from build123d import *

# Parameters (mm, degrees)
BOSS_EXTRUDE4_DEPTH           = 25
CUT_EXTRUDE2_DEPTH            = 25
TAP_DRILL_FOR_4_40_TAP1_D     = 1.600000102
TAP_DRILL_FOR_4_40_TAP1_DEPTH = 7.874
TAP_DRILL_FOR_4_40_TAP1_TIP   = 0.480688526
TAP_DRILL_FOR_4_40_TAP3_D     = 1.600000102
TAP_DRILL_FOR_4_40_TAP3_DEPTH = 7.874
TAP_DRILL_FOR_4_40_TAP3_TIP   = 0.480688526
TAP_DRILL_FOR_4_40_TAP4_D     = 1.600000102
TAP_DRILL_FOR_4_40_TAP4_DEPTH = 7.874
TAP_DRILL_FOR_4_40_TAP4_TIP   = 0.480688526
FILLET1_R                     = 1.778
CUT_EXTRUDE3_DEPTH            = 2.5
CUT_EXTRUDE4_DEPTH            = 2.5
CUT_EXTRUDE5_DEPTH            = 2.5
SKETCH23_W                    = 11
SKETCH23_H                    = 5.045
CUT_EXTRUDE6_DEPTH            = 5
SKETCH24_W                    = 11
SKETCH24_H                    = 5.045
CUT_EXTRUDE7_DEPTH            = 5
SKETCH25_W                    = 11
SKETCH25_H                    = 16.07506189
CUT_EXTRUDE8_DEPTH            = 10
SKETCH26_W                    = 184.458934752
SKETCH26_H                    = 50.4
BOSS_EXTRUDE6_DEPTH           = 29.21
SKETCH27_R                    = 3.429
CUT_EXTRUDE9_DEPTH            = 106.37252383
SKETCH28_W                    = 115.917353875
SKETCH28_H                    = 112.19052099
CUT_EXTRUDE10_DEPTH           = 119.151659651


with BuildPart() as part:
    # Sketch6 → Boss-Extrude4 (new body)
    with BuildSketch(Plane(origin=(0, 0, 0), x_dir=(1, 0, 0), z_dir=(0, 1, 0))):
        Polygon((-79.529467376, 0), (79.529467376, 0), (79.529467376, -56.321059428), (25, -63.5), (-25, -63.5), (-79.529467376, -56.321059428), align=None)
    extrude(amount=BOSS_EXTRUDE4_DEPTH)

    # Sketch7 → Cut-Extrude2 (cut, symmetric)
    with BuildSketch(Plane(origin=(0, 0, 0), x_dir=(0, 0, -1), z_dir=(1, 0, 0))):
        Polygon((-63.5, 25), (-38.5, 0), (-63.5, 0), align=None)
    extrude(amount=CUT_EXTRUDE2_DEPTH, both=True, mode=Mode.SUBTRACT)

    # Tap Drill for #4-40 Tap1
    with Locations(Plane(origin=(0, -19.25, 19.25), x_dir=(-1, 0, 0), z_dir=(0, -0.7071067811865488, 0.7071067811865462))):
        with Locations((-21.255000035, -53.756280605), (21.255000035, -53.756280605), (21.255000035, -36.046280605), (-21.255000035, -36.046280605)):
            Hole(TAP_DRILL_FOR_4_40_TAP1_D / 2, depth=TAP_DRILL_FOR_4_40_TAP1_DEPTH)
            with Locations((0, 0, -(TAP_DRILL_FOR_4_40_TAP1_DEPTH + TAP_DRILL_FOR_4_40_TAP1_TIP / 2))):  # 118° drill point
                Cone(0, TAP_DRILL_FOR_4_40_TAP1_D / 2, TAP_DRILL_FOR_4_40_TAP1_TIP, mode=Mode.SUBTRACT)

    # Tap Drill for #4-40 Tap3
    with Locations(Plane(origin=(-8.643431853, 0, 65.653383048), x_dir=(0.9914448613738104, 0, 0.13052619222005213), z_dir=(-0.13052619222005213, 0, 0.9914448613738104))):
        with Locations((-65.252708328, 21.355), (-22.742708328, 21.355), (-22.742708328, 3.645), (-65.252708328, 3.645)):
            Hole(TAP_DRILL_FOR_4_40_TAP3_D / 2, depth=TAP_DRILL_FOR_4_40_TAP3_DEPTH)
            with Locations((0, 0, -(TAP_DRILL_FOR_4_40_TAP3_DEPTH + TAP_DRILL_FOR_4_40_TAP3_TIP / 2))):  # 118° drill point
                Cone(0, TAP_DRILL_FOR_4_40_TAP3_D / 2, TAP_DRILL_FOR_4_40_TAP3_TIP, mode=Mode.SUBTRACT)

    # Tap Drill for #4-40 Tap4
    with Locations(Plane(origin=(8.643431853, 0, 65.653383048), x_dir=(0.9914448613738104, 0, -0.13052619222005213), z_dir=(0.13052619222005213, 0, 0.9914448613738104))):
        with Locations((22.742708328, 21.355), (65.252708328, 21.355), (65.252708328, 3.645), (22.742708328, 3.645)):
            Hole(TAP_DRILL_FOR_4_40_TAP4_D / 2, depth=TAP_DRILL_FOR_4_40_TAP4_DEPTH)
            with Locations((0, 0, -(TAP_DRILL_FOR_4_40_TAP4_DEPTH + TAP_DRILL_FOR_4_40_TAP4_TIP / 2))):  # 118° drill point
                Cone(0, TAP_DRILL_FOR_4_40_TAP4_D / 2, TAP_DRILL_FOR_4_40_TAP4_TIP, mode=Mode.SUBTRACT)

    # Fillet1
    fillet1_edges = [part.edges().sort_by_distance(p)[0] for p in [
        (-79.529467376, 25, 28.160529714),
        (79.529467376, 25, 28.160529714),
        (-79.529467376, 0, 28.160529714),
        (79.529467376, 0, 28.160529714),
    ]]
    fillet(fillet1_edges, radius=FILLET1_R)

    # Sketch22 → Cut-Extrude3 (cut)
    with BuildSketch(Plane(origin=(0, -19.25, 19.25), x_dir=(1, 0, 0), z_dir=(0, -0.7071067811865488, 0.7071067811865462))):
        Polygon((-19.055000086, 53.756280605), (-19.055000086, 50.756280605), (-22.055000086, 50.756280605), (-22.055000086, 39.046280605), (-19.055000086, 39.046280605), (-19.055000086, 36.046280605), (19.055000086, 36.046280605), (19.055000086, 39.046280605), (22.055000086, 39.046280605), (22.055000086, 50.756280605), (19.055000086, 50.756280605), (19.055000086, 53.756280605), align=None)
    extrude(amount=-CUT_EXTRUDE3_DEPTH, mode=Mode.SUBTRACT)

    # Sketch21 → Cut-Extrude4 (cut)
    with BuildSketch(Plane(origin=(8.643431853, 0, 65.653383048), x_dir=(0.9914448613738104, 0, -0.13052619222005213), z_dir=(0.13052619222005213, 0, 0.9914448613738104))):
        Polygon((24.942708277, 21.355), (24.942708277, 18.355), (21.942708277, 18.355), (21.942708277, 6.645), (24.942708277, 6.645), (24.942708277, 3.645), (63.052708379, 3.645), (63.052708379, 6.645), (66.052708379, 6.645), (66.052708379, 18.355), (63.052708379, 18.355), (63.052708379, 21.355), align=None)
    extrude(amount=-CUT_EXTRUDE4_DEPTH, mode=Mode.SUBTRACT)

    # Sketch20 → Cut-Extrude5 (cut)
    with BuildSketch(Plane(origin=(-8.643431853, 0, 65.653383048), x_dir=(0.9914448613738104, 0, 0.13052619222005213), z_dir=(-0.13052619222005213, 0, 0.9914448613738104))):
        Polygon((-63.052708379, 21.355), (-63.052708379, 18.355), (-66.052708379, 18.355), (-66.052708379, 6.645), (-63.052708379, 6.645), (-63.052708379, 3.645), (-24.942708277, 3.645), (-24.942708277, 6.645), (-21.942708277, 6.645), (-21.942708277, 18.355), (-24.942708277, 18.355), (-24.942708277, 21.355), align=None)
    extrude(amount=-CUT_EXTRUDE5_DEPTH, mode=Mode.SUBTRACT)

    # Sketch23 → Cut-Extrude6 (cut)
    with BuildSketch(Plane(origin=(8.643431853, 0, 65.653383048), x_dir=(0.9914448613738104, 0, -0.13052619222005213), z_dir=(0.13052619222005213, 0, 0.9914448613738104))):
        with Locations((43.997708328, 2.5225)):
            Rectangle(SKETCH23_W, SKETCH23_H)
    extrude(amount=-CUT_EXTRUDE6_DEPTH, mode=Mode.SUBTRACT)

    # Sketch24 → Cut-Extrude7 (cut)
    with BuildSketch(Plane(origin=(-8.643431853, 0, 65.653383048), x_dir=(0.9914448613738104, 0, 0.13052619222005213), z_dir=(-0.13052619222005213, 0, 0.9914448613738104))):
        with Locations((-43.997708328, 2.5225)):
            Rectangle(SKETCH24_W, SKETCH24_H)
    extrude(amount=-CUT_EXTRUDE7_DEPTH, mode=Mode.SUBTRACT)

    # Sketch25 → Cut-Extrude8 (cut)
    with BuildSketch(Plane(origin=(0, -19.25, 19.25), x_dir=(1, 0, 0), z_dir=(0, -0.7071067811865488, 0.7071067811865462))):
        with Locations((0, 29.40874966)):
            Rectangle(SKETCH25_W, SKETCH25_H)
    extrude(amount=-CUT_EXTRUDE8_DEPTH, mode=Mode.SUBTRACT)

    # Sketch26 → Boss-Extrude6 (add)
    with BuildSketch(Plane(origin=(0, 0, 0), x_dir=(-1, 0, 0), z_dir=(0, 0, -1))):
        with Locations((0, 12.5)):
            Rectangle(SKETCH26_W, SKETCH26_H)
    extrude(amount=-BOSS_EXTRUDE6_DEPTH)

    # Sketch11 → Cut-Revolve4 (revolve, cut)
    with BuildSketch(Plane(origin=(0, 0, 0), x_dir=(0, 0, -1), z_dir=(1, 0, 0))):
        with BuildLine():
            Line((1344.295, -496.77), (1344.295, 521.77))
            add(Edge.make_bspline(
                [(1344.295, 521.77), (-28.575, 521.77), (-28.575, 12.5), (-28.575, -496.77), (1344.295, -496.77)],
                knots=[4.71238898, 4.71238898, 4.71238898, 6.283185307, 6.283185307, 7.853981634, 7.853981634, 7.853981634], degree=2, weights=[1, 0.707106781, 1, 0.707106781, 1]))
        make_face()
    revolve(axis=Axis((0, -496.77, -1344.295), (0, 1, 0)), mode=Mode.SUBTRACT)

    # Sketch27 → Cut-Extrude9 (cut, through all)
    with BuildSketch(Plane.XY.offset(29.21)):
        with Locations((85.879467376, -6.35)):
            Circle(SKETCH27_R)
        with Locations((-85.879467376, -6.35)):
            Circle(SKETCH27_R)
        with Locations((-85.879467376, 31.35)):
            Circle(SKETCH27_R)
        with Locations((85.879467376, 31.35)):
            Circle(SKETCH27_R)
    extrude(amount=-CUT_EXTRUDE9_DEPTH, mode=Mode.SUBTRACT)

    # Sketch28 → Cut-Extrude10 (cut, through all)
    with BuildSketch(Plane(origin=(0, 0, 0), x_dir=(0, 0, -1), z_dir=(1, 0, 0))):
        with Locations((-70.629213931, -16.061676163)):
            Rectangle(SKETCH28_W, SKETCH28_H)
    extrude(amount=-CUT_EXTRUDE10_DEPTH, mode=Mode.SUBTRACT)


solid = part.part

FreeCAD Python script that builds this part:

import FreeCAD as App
import Part
import Sketcher
from FreeCAD import Vector
Q = App.Units.Quantity


def edges_at(feature, points):
    """Names of the edges that pass closest to the given points."""
    edges = feature.Shape.Edges
    near = lambda p: min(range(len(edges)), key=lambda i: edges[i].distToShape(Part.Vertex(*p))[0])
    return sorted({f"Edge{near(p) + 1}" for p in points})

doc = App.newDocument("Part")
body = doc.addObject("PartDesign::Body", "Body")

# Sketch on XZ plane
sketch1 = body.newObject("Sketcher::SketchObject", "Sketch")
sketch1.AttachmentSupport = (doc.getObject("XZ_Plane"), [""])
sketch1.MapMode = "FlatFace"
sketch1.addGeometry(Part.LineSegment(Vector(80, 0, 0), Vector(-80, 0, 0)), False)
sketch1.addGeometry(Part.LineSegment(Vector(-80, 0, 0), Vector(-80, 56, 0)), False)
sketch1.addGeometry(Part.LineSegment(Vector(-80, 56, 0), Vector(-25, 64, 0)), False)
sketch1.addGeometry(Part.LineSegment(Vector(-25, 64, 0), Vector(25, 64, 0)), False)
sketch1.addGeometry(Part.LineSegment(Vector(25, 64, 0), Vector(80, 56, 0)), False)
sketch1.addGeometry(Part.LineSegment(Vector(80, 56, 0), Vector(80, 0, 0)), False)
sketch1.addConstraint(Sketcher.Constraint("Coincident", 0, 2, 1, 1))
sketch1.addConstraint(Sketcher.Constraint("Coincident", 1, 2, 2, 1))
sketch1.addConstraint(Sketcher.Constraint("Coincident", 2, 2, 3, 1))
sketch1.addConstraint(Sketcher.Constraint("Coincident", 3, 2, 4, 1))
sketch1.addConstraint(Sketcher.Constraint("Coincident", 4, 2, 5, 1))
sketch1.addConstraint(Sketcher.Constraint("Coincident", 5, 2, 0, 1))
sketch1.addConstraint(Sketcher.Constraint("Horizontal", 0))
sketch1.addConstraint(Sketcher.Constraint("Vertical", 1))
sketch1.addConstraint(Sketcher.Constraint("Horizontal", 3))
sketch1.addConstraint(Sketcher.Constraint("Vertical", 5))
sketch1.addConstraint(Sketcher.Constraint("Symmetric", 0, 2, 5, 2, -1, 1))
sketch1.addConstraint(Sketcher.Constraint("Horizontal", 1, 2, 4, 2))
sketch1.addConstraint(Sketcher.Constraint("Equal", 2, 4))
sketch1.addConstraint(Sketcher.Constraint("DistanceX", 3, 1, 3, 2, Q("50 mm")))
sketch1.addConstraint(Sketcher.Constraint("Distance", 2, Q("55 mm")))
sketch1.addConstraint(Sketcher.Constraint("Angle", 2, Q("7.5 deg")))
sketch1.addConstraint(Sketcher.Constraint("DistanceY", -1, 1, 2, 2, Q("63.5 mm")))
pad1 = body.newObject("PartDesign::Pad", "Pad")
pad1.Profile = sketch1
pad1.Length = 25
pad1.Reversed = True

# Sketch on YZ plane
sketch2 = body.newObject("Sketcher::SketchObject", "Sketch001")
sketch2.AttachmentSupport = (doc.getObject("YZ_Plane"), [""])
sketch2.MapMode = "FlatFace"
sketch2.addGeometry(Part.LineSegment(Vector(0, 38, 0), Vector(25, 64, 0)), False)
sketch2.addGeometry(Part.LineSegment(Vector(25, 64, 0), Vector(0, 64, 0)), False)
sketch2.addGeometry(Part.LineSegment(Vector(0, 64, 0), Vector(0, 38, 0)), False)
sketch2.addConstraint(Sketcher.Constraint("Coincident", 0, 2, 1, 1))
sketch2.addConstraint(Sketcher.Constraint("Coincident", 1, 2, 2, 1))
sketch2.addConstraint(Sketcher.Constraint("Coincident", 2, 2, 0, 1))
sketch2.addConstraint(Sketcher.Constraint("Horizontal", 1))
sketch2.addConstraint(Sketcher.Constraint("Vertical", 2))
sketch2.addConstraint(Sketcher.Constraint("PointOnObject", 1, 2, -2))
sketch2.addConstraint(Sketcher.Constraint("Equal", 1, 2))
sketch2.addConstraint(Sketcher.Constraint("DistanceX", 1, 2, 1, 1, Q("25 mm")))
sketch2.addConstraint(Sketcher.Constraint("DistanceY", -1, 1, 0, 2, Q("63.5 mm")))
pocket1 = body.newObject("PartDesign::Pocket", "Pocket")
pocket1.Profile = sketch2
pocket1.Length = 50
pocket1.Midplane = True

# Sketch on an angled plane
sketch3 = body.newObject("Sketcher::SketchObject", "Sketch002")
sketch3.Placement = App.Placement(Vector(0, -19.25, 19.25), App.Rotation(Vector(-1, 0, 0), Vector(0, -0.707106781, -0.707106781), Vector(0, -0.707106781, 0.707106781), "ZXY"))
sketch3.addGeometry(Part.Circle(Vector(-21.3, -53.8, 0), Vector(0, 0, 1), 0.8), False)
sketch3.addGeometry(Part.Circle(Vector(21.3, -53.8, 0), Vector(0, 0, 1), 0.8), False)
sketch3.addGeometry(Part.Circle(Vector(21.3, -36, 0), Vector(0, 0, 1), 0.8), False)
sketch3.addGeometry(Part.Circle(Vector(-21.3, -36, 0), Vector(0, 0, 1), 0.8), False)
sketch3.addConstraint(Sketcher.Constraint("Equal", 0, 1))
sketch3.addConstraint(Sketcher.Constraint("Equal", 1, 2))
sketch3.addConstraint(Sketcher.Constraint("Equal", 2, 3))
sketch3.addConstraint(Sketcher.Constraint("Symmetric", 0, 3, 1, 3, -2))
sketch3.addConstraint(Sketcher.Constraint("Symmetric", 2, 3, 3, 3, -2))
sketch3.addConstraint(Sketcher.Constraint("Vertical", 1, 3, 2, 3))
sketch3.addConstraint(Sketcher.Constraint("Diameter", 0, Q("1.6 mm")))
sketch3.addConstraint(Sketcher.Constraint("DistanceX", 0, 3, 1, 3, Q("42.51 mm")))
sketch3.addConstraint(Sketcher.Constraint("DistanceY", 1, 3, 2, 3, Q("17.71 mm")))
sketch3.addConstraint(Sketcher.Constraint("DistanceY", 0, 3, -1, 1, Q("53.756281 mm")))
doc.recompute()
hole = body.newObject("PartDesign::Hole", "Hole")
hole.Profile = sketch3
hole.ThreadType = "None"
hole.Diameter = 1.6
hole.DepthType = "Dimension"
hole.Depth = 7.874
hole.DrillPoint = "Angled"
hole.DrillPointAngle = 118

# Sketch on an angled plane
sketch4 = body.newObject("Sketcher::SketchObject", "Sketch003")
sketch4.Placement = App.Placement(Vector(-8.643432, 0, 65.653383), App.Rotation(Vector(0.991444861, 0, 0.130526192), Vector(0, 0.999999999, 0), Vector(-0.130526192, 0, 0.991444861), "ZXY"))
sketch4.addGeometry(Part.Circle(Vector(-65.3, 21.4, 0), Vector(0, 0, 1), 0.8), False)
sketch4.addGeometry(Part.Circle(Vector(-22.7, 21.4, 0), Vector(0, 0, 1), 0.8), False)
sketch4.addGeometry(Part.Circle(Vector(-22.7, 3.6, 0), Vector(0, 0, 1), 0.8), False)
sketch4.addGeometry(Part.Circle(Vector(-65.3, 3.6, 0), Vector(0, 0, 1), 0.8), False)
sketch4.addConstraint(Sketcher.Constraint("Equal", 0, 1))
sketch4.addConstraint(Sketcher.Constraint("Equal", 1, 2))
sketch4.addConstraint(Sketcher.Constraint("Equal", 2, 3))
sketch4.addConstraint(Sketcher.Constraint("Horizontal", 0, 3, 1, 3))
sketch4.addConstraint(Sketcher.Constraint("Horizontal", 2, 3, 3, 3))
sketch4.addConstraint(Sketcher.Constraint("Vertical", 1, 3, 2, 3))
sketch4.addConstraint(Sketcher.Constraint("Vertical", 0, 3, 3, 3))
sketch4.addConstraint(Sketcher.Constraint("Diameter", 0, Q("1.6 mm")))
sketch4.addConstraint(Sketcher.Constraint("DistanceX", 0, 3, 1, 3, Q("42.51 mm")))
sketch4.addConstraint(Sketcher.Constraint("DistanceY", 2, 3, 1, 3, Q("17.71 mm")))
sketch4.addConstraint(Sketcher.Constraint("DistanceY", -1, 1, 0, 3, Q("21.355 mm")))
sketch4.addConstraint(Sketcher.Constraint("DistanceX", 0, 3, -1, 1, Q("65.252708 mm")))
doc.recompute()
hole2 = body.newObject("PartDesign::Hole", "Hole001")
hole2.Profile = sketch4
hole2.ThreadType = "None"
hole2.Diameter = 1.6
hole2.DepthType = "Dimension"
hole2.Depth = 7.874
hole2.DrillPoint = "Angled"
hole2.DrillPointAngle = 118

# Sketch on an angled plane
sketch5 = body.newObject("Sketcher::SketchObject", "Sketch004")
sketch5.Placement = App.Placement(Vector(8.643432, 0, 65.653383), App.Rotation(Vector(0.991444861, 0, -0.130526192), Vector(0, 0.999999999, 0), Vector(0.130526192, 0, 0.991444861), "ZXY"))
sketch5.addGeometry(Part.Circle(Vector(22.7, 21.4, 0), Vector(0, 0, 1), 0.8), False)
sketch5.addGeometry(Part.Circle(Vector(65.3, 21.4, 0), Vector(0, 0, 1), 0.8), False)
sketch5.addGeometry(Part.Circle(Vector(65.3, 3.6, 0), Vector(0, 0, 1), 0.8), False)
sketch5.addGeometry(Part.Circle(Vector(22.7, 3.6, 0), Vector(0, 0, 1), 0.8), False)
sketch5.addConstraint(Sketcher.Constraint("Equal", 0, 1))
sketch5.addConstraint(Sketcher.Constraint("Equal", 1, 2))
sketch5.addConstraint(Sketcher.Constraint("Equal", 2, 3))
sketch5.addConstraint(Sketcher.Constraint("Horizontal", 0, 3, 1, 3))
sketch5.addConstraint(Sketcher.Constraint("Horizontal", 2, 3, 3, 3))
sketch5.addConstraint(Sketcher.Constraint("Vertical", 1, 3, 2, 3))
sketch5.addConstraint(Sketcher.Constraint("Vertical", 0, 3, 3, 3))
sketch5.addConstraint(Sketcher.Constraint("Diameter", 0, Q("1.6 mm")))
sketch5.addConstraint(Sketcher.Constraint("DistanceX", 0, 3, 1, 3, Q("42.51 mm")))
sketch5.addConstraint(Sketcher.Constraint("DistanceY", 2, 3, 1, 3, Q("17.71 mm")))
sketch5.addConstraint(Sketcher.Constraint("DistanceY", -1, 1, 0, 3, Q("21.355 mm")))
sketch5.addConstraint(Sketcher.Constraint("DistanceX", -1, 1, 0, 3, Q("22.742708 mm")))
doc.recompute()
hole3 = body.newObject("PartDesign::Hole", "Hole002")
hole3.Profile = sketch5
hole3.ThreadType = "None"
hole3.Diameter = 1.6
hole3.DepthType = "Dimension"
hole3.Depth = 7.874
hole3.DrillPoint = "Angled"
hole3.DrillPointAngle = 118
doc.recompute()

fillet = body.newObject("PartDesign::Fillet", "Fillet")
fillet.Base = (hole3, edges_at(hole3, [
    (-79.529, 25, 28.161),
    (79.529, 25, 28.161),
    (-79.529, 0, 28.161),
    (79.529, 0, 28.161),
]))
fillet.Radius = 1.778

# Sketch on an angled plane
sketch6 = body.newObject("Sketcher::SketchObject", "Sketch005")
sketch6.Placement = App.Placement(Vector(0, -19.25, 19.25), App.Rotation(Vector(1, 0, 0), Vector(0, 0.707106781, 0.707106781), Vector(0, -0.707106781, 0.707106781), "ZXY"))
sketch6.addGeometry(Part.LineSegment(Vector(-19.1, 53.8, 0), Vector(-19.1, 50.8, 0)), False)
sketch6.addGeometry(Part.LineSegment(Vector(-19.1, 50.8, 0), Vector(-22.1, 50.8, 0)), False)
sketch6.addGeometry(Part.LineSegment(Vector(-22.1, 50.8, 0), Vector(-22.1, 39, 0)), False)
sketch6.addGeometry(Part.LineSegment(Vector(-22.1, 39, 0), Vector(-19.1, 39, 0)), False)
sketch6.addGeometry(Part.LineSegment(Vector(-19.1, 39, 0), Vector(-19.1, 36, 0)), False)
sketch6.addGeometry(Part.LineSegment(Vector(-19.1, 36, 0), Vector(19.1, 36, 0)), False)
sketch6.addGeometry(Part.LineSegment(Vector(19.1, 36, 0), Vector(19.1, 39, 0)), False)
sketch6.addGeometry(Part.LineSegment(Vector(19.1, 39, 0), Vector(22.1, 39, 0)), False)
sketch6.addGeometry(Part.LineSegment(Vector(22.1, 39, 0), Vector(22.1, 50.8, 0)), False)
sketch6.addGeometry(Part.LineSegment(Vector(22.1, 50.8, 0), Vector(19.1, 50.8, 0)), False)
sketch6.addGeometry(Part.LineSegment(Vector(19.1, 50.8, 0), Vector(19.1, 53.8, 0)), False)
sketch6.addGeometry(Part.LineSegment(Vector(19.1, 53.8, 0), Vector(-19.1, 53.8, 0)), False)
sketch6.addConstraint(Sketcher.Constraint("Coincident", 0, 2, 1, 1))
sketch6.addConstraint(Sketcher.Constraint("Coincident", 1, 2, 2, 1))
sketch6.addConstraint(Sketcher.Constraint("Coincident", 2, 2, 3, 1))
sketch6.addConstraint(Sketcher.Constraint("Coincident", 3, 2, 4, 1))
sketch6.addConstraint(Sketcher.Constraint("Coincident", 4, 2, 5, 1))
sketch6.addConstraint(Sketcher.Constraint("Coincident", 5, 2, 6, 1))
sketch6.addConstraint(Sketcher.Constraint("Coincident", 6, 2, 7, 1))
sketch6.addConstraint(Sketcher.Constraint("Coincident", 7, 2, 8, 1))
sketch6.addConstraint(Sketcher.Constraint("Coincident", 8, 2, 9, 1))
sketch6.addConstraint(Sketcher.Constraint("Coincident", 9, 2, 10, 1))
sketch6.addConstraint(Sketcher.Constraint("Coincident", 10, 2, 11, 1))
sketch6.addConstraint(Sketcher.Constraint("Coincident", 11, 2, 0, 1))
sketch6.addConstraint(Sketcher.Constraint("Vertical", 0))
sketch6.addConstraint(Sketcher.Constraint("Horizontal", 1))
sketch6.addConstraint(Sketcher.Constraint("Vertical", 2))
sketch6.addConstraint(Sketcher.Constraint("Horizontal", 3))
sketch6.addConstraint(Sketcher.Constraint("Vertical", 4))
sketch6.addConstraint(Sketcher.Constraint("Horizontal", 5))
sketch6.addConstraint(Sketcher.Constraint("Vertical", 6))
sketch6.addConstraint(Sketcher.Constraint("Horizontal", 7))
sketch6.addConstraint(Sketcher.Constraint("Vertical", 8))
sketch6.addConstraint(Sketcher.Constraint("Horizontal", 9))
sketch6.addConstraint(Sketcher.Constraint("Vertical", 10))
sketch6.addConstraint(Sketcher.Constraint("Horizontal", 11))
sketch6.addConstraint(Sketcher.Constraint("Symmetric", 3, 2, 6, 2, -2))
sketch6.addConstraint(Sketcher.Constraint("Symmetric", 1, 2, 8, 2, -2))
sketch6.addConstraint(Sketcher.Constraint("Vertical", 0, 2, 3, 2))
sketch6.addConstraint(Sketcher.Constraint("Vertical", 6, 2, 9, 2))
sketch6.addConstraint(Sketcher.Constraint("Equal", 9, 0))
sketch6.addConstraint(Sketcher.Constraint("Equal", 0, 4))
sketch6.addConstraint(Sketcher.Constraint("DistanceX", 1, 2, 1, 1, Q("3 mm")))
sketch6.addConstraint(Sketcher.Constraint("DistanceX", 5, 1, 5, 2, Q("38.11 mm")))
sketch6.addConstraint(Sketcher.Constraint("DistanceY", 2, 2, 2, 1, Q("11.71 mm")))
sketch6.addConstraint(Sketcher.Constraint("DistanceY", -1, 1, 0, 2, Q("50.756281 mm")))
pocket2 = body.newObject("PartDesign::Pocket", "Pocket001")
pocket2.Profile = sketch6
pocket2.Length = 2.5

# Sketch on an angled plane
sketch7 = body.newObject("Sketcher::SketchObject", "Sketch006")
sketch7.Placement = App.Placement(Vector(8.643432, 0, 65.653383), App.Rotation(Vector(0.991444861, 0, -0.130526192), Vector(0, 0.999999999, 0), Vector(0.130526192, 0, 0.991444861), "ZXY"))
sketch7.addGeometry(Part.LineSegment(Vector(24.9, 21.4, 0), Vector(24.9, 18.4, 0)), False)
sketch7.addGeometry(Part.LineSegment(Vector(24.9, 18.4, 0), Vector(21.9, 18.4, 0)), False)
sketch7.addGeometry(Part.LineSegment(Vector(21.9, 18.4, 0), Vector(21.9, 6.6, 0)), False)
sketch7.addGeometry(Part.LineSegment(Vector(21.9, 6.6, 0), Vector(24.9, 6.6, 0)), False)
sketch7.addGeometry(Part.LineSegment(Vector(24.9, 6.6, 0), Vector(24.9, 3.6, 0)), False)
sketch7.addGeometry(Part.LineSegment(Vector(24.9, 3.6, 0), Vector(63.1, 3.6, 0)), False)
sketch7.addGeometry(Part.LineSegment(Vector(63.1, 3.6, 0), Vector(63.1, 6.6, 0)), False)
sketch7.addGeometry(Part.LineSegment(Vector(63.1, 6.6, 0), Vector(66.1, 6.6, 0)), False)
sketch7.addGeometry(Part.LineSegment(Vector(66.1, 6.6, 0), Vector(66.1, 18.4, 0)), False)
sketch7.addGeometry(Part.LineSegment(Vector(66.1, 18.4, 0), Vector(63.1, 18.4, 0)), False)
sketch7.addGeometry(Part.LineSegment(Vector(63.1, 18.4, 0), Vector(63.1, 21.4, 0)), False)
sketch7.addGeometry(Part.LineSegment(Vector(63.1, 21.4, 0), Vector(24.9, 21.4, 0)), False)
sketch7.addConstraint(Sketcher.Constraint("Coincident", 0, 2, 1, 1))
sketch7.addConstraint(Sketcher.Constraint("Coincident", 1, 2, 2, 1))
sketch7.addConstraint(Sketcher.Constraint("Coincident", 2, 2, 3, 1))
sketch7.addConstraint(Sketcher.Constraint("Coincident", 3, 2, 4, 1))
sketch7.addConstraint(Sketcher.Constraint("Coincident", 4, 2, 5, 1))
sketch7.addConstraint(Sketcher.Constraint("Coincident", 5, 2, 6, 1))
sketch7.addConstraint(Sketcher.Constraint("Coincident", 6, 2, 7, 1))
sketch7.addConstraint(Sketcher.Constraint("Coincident", 7, 2, 8, 1))
sketch7.addConstraint(Sketcher.Constraint("Coincident", 8, 2, 9, 1))
sketch7.addConstraint(Sketcher.Constraint("Coincident", 9, 2, 10, 1))
sketch7.addConstraint(Sketcher.Constraint("Coincident", 10, 2, 11, 1))
sketch7.addConstraint(Sketcher.Constraint("Coincident", 11, 2, 0, 1))
sketch7.addConstraint(Sketcher.Constraint("Vertical", 0))
sketch7.addConstraint(Sketcher.Constraint("Horizontal", 1))
sketch7.addConstraint(Sketcher.Constraint("Vertical", 2))
sketch7.addConstraint(Sketcher.Constraint("Horizontal", 3))
sketch7.addConstraint(Sketcher.Constraint("Vertical", 4))
sketch7.addConstraint(Sketcher.Constraint("Horizontal", 5))
sketch7.addConstraint(Sketcher.Constraint("Vertical", 6))
sketch7.addConstraint(Sketcher.Constraint("Horizontal", 7))
sketch7.addConstraint(Sketcher.Constraint("Vertical", 8))
sketch7.addConstraint(Sketcher.Constraint("Horizontal", 9))
sketch7.addConstraint(Sketcher.Constraint("Vertical", 10))
sketch7.addConstraint(Sketcher.Constraint("Horizontal", 11))
sketch7.addConstraint(Sketcher.Constraint("Horizontal", 3, 2, 6, 2))
sketch7.addConstraint(Sketcher.Constraint("Horizontal", 1, 2, 8, 2))
sketch7.addConstraint(Sketcher.Constraint("Vertical", 0, 2, 3, 2))
sketch7.addConstraint(Sketcher.Constraint("Vertical", 6, 2, 9, 2))
sketch7.addConstraint(Sketcher.Constraint("Equal", 3, 7))
sketch7.addConstraint(Sketcher.Constraint("Equal", 9, 0))
sketch7.addConstraint(Sketcher.Constraint("Equal", 0, 4))
sketch7.addConstraint(Sketcher.Constraint("DistanceX", 1, 2, 1, 1, Q("3 mm")))
sketch7.addConstraint(Sketcher.Constraint("DistanceX", 5, 1, 5, 2, Q("38.11 mm")))
sketch7.addConstraint(Sketcher.Constraint("DistanceY", 2, 2, 2, 1, Q("11.71 mm")))
sketch7.addConstraint(Sketcher.Constraint("DistanceY", -1, 1, 0, 2, Q("18.355 mm")))
sketch7.addConstraint(Sketcher.Constraint("DistanceX", -1, 1, 0, 2, Q("24.942708 mm")))
pocket3 = body.newObject("PartDesign::Pocket", "Pocket002")
pocket3.Profile = sketch7
pocket3.Length = 2.5

# Sketch on an angled plane
sketch8 = body.newObject("Sketcher::SketchObject", "Sketch007")
sketch8.Placement = App.Placement(Vector(-8.643432, 0, 65.653383), App.Rotation(Vector(0.991444861, 0, 0.130526192), Vector(0, 0.999999999, 0), Vector(-0.130526192, 0, 0.991444861), "ZXY"))
sketch8.addGeometry(Part.LineSegment(Vector(-63.1, 21.4, 0), Vector(-63.1, 18.4, 0)), False)
sketch8.addGeometry(Part.LineSegment(Vector(-63.1, 18.4, 0), Vector(-66.1, 18.4, 0)), False)
sketch8.addGeometry(Part.LineSegment(Vector(-66.1, 18.4, 0), Vector(-66.1, 6.6, 0)), False)
sketch8.addGeometry(Part.LineSegment(Vector(-66.1, 6.6, 0), Vector(-63.1, 6.6, 0)), False)
sketch8.addGeometry(Part.LineSegment(Vector(-63.1, 6.6, 0), Vector(-63.1, 3.6, 0)), False)
sketch8.addGeometry(Part.LineSegment(Vector(-63.1, 3.6, 0), Vector(-24.9, 3.6, 0)), False)
sketch8.addGeometry(Part.LineSegment(Vector(-24.9, 3.6, 0), Vector(-24.9, 6.6, 0)), False)
sketch8.addGeometry(Part.LineSegment(Vector(-24.9, 6.6, 0), Vector(-21.9, 6.6, 0)), False)
sketch8.addGeometry(Part.LineSegment(Vector(-21.9, 6.6, 0), Vector(-21.9, 18.4, 0)), False)
sketch8.addGeometry(Part.LineSegment(Vector(-21.9, 18.4, 0), Vector(-24.9, 18.4, 0)), False)
sketch8.addGeometry(Part.LineSegment(Vector(-24.9, 18.4, 0), Vector(-24.9, 21.4, 0)), False)
sketch8.addGeometry(Part.LineSegment(Vector(-24.9, 21.4, 0), Vector(-63.1, 21.4, 0)), False)
sketch8.addConstraint(Sketcher.Constraint("Coincident", 0, 2, 1, 1))
sketch8.addConstraint(Sketcher.Constraint("Coincident", 1, 2, 2, 1))
sketch8.addConstraint(Sketcher.Constraint("Coincident", 2, 2, 3, 1))
sketch8.addConstraint(Sketcher.Constraint("Coincident", 3, 2, 4, 1))
sketch8.addConstraint(Sketcher.Constraint("Coincident", 4, 2, 5, 1))
sketch8.addConstraint(Sketcher.Constraint("Coincident", 5, 2, 6, 1))
sketch8.addConstraint(Sketcher.Constraint("Coincident", 6, 2, 7, 1))
sketch8.addConstraint(Sketcher.Constraint("Coincident", 7, 2, 8, 1))
sketch8.addConstraint(Sketcher.Constraint("Coincident", 8, 2, 9, 1))
sketch8.addConstraint(Sketcher.Constraint("Coincident", 9, 2, 10, 1))
sketch8.addConstraint(Sketcher.Constraint("Coincident", 10, 2, 11, 1))
sketch8.addConstraint(Sketcher.Constraint("Coincident", 11, 2, 0, 1))
sketch8.addConstraint(Sketcher.Constraint("Vertical", 0))
sketch8.addConstraint(Sketcher.Constraint("Horizontal", 1))
sketch8.addConstraint(Sketcher.Constraint("Vertical", 2))
sketch8.addConstraint(Sketcher.Constraint("Horizontal", 3))
sketch8.addConstraint(Sketcher.Constraint("Vertical", 4))
sketch8.addConstraint(Sketcher.Constraint("Horizontal", 5))
sketch8.addConstraint(Sketcher.Constraint("Vertical", 6))
sketch8.addConstraint(Sketcher.Constraint("Horizontal", 7))
sketch8.addConstraint(Sketcher.Constraint("Vertical", 8))
sketch8.addConstraint(Sketcher.Constraint("Horizontal", 9))
sketch8.addConstraint(Sketcher.Constraint("Vertical", 10))
sketch8.addConstraint(Sketcher.Constraint("Horizontal", 11))
sketch8.addConstraint(Sketcher.Constraint("Horizontal", 3, 2, 6, 2))
sketch8.addConstraint(Sketcher.Constraint("Horizontal", 1, 2, 8, 2))
sketch8.addConstraint(Sketcher.Constraint("Vertical", 0, 2, 3, 2))
sketch8.addConstraint(Sketcher.Constraint("Vertical", 6, 2, 9, 2))
sketch8.addConstraint(Sketcher.Constraint("Equal", 3, 7))
sketch8.addConstraint(Sketcher.Constraint("Equal", 9, 0))
sketch8.addConstraint(Sketcher.Constraint("Equal", 0, 4))
sketch8.addConstraint(Sketcher.Constraint("DistanceX", 1, 2, 1, 1, Q("3 mm")))
sketch8.addConstraint(Sketcher.Constraint("DistanceX", 5, 1, 5, 2, Q("38.11 mm")))
sketch8.addConstraint(Sketcher.Constraint("DistanceY", 2, 2, 2, 1, Q("11.71 mm")))
sketch8.addConstraint(Sketcher.Constraint("DistanceY", -1, 1, 0, 2, Q("18.355 mm")))
sketch8.addConstraint(Sketcher.Constraint("DistanceX", 0, 2, -1, 1, Q("63.052708 mm")))
pocket4 = body.newObject("PartDesign::Pocket", "Pocket003")
pocket4.Profile = sketch8
pocket4.Length = 2.5

# Sketch on an angled plane
sketch9 = body.newObject("Sketcher::SketchObject", "Sketch008")
sketch9.Placement = App.Placement(Vector(8.643432, 0, 65.653383), App.Rotation(Vector(0.991444861, 0, -0.130526192), Vector(0, 0.999999999, 0), Vector(0.130526192, 0, 0.991444861), "ZXY"))
sketch9.addGeometry(Part.LineSegment(Vector(38, 5, 0), Vector(38, 0, 0)), False)
sketch9.addGeometry(Part.LineSegment(Vector(38, 0, 0), Vector(49, 0, 0)), False)
sketch9.addGeometry(Part.LineSegment(Vector(49, 0, 0), Vector(49, 5, 0)), False)
sketch9.addGeometry(Part.LineSegment(Vector(49, 5, 0), Vector(38, 5, 0)), False)
sketch9.addConstraint(Sketcher.Constraint("Coincident", 0, 2, 1, 1))
sketch9.addConstraint(Sketcher.Constraint("Coincident", 1, 2, 2, 1))
sketch9.addConstraint(Sketcher.Constraint("Coincident", 2, 2, 3, 1))
sketch9.addConstraint(Sketcher.Constraint("Coincident", 3, 2, 0, 1))
sketch9.addConstraint(Sketcher.Constraint("Vertical", 0))
sketch9.addConstraint(Sketcher.Constraint("Horizontal", 1))
sketch9.addConstraint(Sketcher.Constraint("Vertical", 2))
sketch9.addConstraint(Sketcher.Constraint("Horizontal", 3))
sketch9.addConstraint(Sketcher.Constraint("PointOnObject", 0, 2, -1))
sketch9.addConstraint(Sketcher.Constraint("DistanceX", 1, 1, 1, 2, Q("11 mm")))
sketch9.addConstraint(Sketcher.Constraint("DistanceY", 0, 2, 0, 1, Q("5.045 mm")))
sketch9.addConstraint(Sketcher.Constraint("DistanceX", -1, 1, 0, 2, Q("38.497708 mm")))
pocket5 = body.newObject("PartDesign::Pocket", "Pocket004")
pocket5.Profile = sketch9
pocket5.Length = 5

# Sketch on an angled plane
sketch10 = body.newObject("Sketcher::SketchObject", "Sketch009")
sketch10.Placement = App.Placement(Vector(-8.643432, 0, 65.653383), App.Rotation(Vector(0.991444861, 0, 0.130526192), Vector(0, 0.999999999, 0), Vector(-0.130526192, 0, 0.991444861), "ZXY"))
sketch10.addGeometry(Part.LineSegment(Vector(-49, 5, 0), Vector(-49, 0, 0)), False)
sketch10.addGeometry(Part.LineSegment(Vector(-49, 0, 0), Vector(-38, 0, 0)), False)
sketch10.addGeometry(Part.LineSegment(Vector(-38, 0, 0), Vector(-38, 5, 0)), False)
sketch10.addGeometry(Part.LineSegment(Vector(-38, 5, 0), Vector(-49, 5, 0)), False)
sketch10.addConstraint(Sketcher.Constraint("Coincident", 0, 2, 1, 1))
sketch10.addConstraint(Sketcher.Constraint("Coincident", 1, 2, 2, 1))
sketch10.addConstraint(Sketcher.Constraint("Coincident", 2, 2, 3, 1))
sketch10.addConstraint(Sketcher.Constraint("Coincident", 3, 2, 0, 1))
sketch10.addConstraint(Sketcher.Constraint("Vertical", 0))
sketch10.addConstraint(Sketcher.Constraint("Horizontal", 1))
sketch10.addConstraint(Sketcher.Constraint("Vertical", 2))
sketch10.addConstraint(Sketcher.Constraint("Horizontal", 3))
sketch10.addConstraint(Sketcher.Constraint("PointOnObject", 0, 2, -1))
sketch10.addConstraint(Sketcher.Constraint("DistanceX", 1, 1, 1, 2, Q("11 mm")))
sketch10.addConstraint(Sketcher.Constraint("DistanceY", 0, 2, 0, 1, Q("5.045 mm")))
sketch10.addConstraint(Sketcher.Constraint("DistanceX", 0, 2, -1, 1, Q("49.497708 mm")))
pocket6 = body.newObject("PartDesign::Pocket", "Pocket005")
pocket6.Profile = sketch10
pocket6.Length = 5

# Sketch on an angled plane
sketch11 = body.newObject("Sketcher::SketchObject", "Sketch010")
sketch11.Placement = App.Placement(Vector(0, -19.25, 19.25), App.Rotation(Vector(1, 0, 0), Vector(0, 0.707106781, 0.707106781), Vector(0, -0.707106781, 0.707106781), "ZXY"))
sketch11.addGeometry(Part.LineSegment(Vector(-6, 37, 0), Vector(-6, 21, 0)), False)
sketch11.addGeometry(Part.LineSegment(Vector(-6, 21, 0), Vector(6, 21, 0)), False)
sketch11.addGeometry(Part.LineSegment(Vector(6, 21, 0), Vector(6, 37, 0)), False)
sketch11.addGeometry(Part.LineSegment(Vector(6, 37, 0), Vector(-6, 37, 0)), False)
sketch11.addConstraint(Sketcher.Constraint("Coincident", 0, 2, 1, 1))
sketch11.addConstraint(Sketcher.Constraint("Coincident", 1, 2, 2, 1))
sketch11.addConstraint(Sketcher.Constraint("Coincident", 2, 2, 3, 1))
sketch11.addConstraint(Sketcher.Constraint("Coincident", 3, 2, 0, 1))
sketch11.addConstraint(Sketcher.Constraint("Vertical", 0))
sketch11.addConstraint(Sketcher.Constraint("Horizontal", 1))
sketch11.addConstraint(Sketcher.Constraint("Vertical", 2))
sketch11.addConstraint(Sketcher.Constraint("Horizontal", 3))
sketch11.addConstraint(Sketcher.Constraint("DistanceX", 1, 1, 1, 2, Q("11 mm")))
sketch11.addConstraint(Sketcher.Constraint("DistanceX", 0, 2, -1, 1, Q("5.5 mm")))
sketch11.addConstraint(Sketcher.Constraint("DistanceY", 0, 2, 0, 1, Q("16.075062 mm")))
sketch11.addConstraint(Sketcher.Constraint("DistanceY", -1, 1, 0, 2, Q("21.371219 mm")))
pocket7 = body.newObject("PartDesign::Pocket", "Pocket006")
pocket7.Profile = sketch11
pocket7.Length = 10

# Sketch on XY plane
sketch12 = body.newObject("Sketcher::SketchObject", "Sketch011")
sketch12.AttachmentSupport = (doc.getObject("XY_Plane"), [""])
sketch12.MapMode = "FlatFace"
sketch12.addGeometry(Part.LineSegment(Vector(92, 38, 0), Vector(92, -13, 0)), False)
sketch12.addGeometry(Part.LineSegment(Vector(92, -13, 0), Vector(-92, -13, 0)), False)
sketch12.addGeometry(Part.LineSegment(Vector(-92, -13, 0), Vector(-92, 38, 0)), False)
sketch12.addGeometry(Part.LineSegment(Vector(-92, 38, 0), Vector(92, 38, 0)), False)
sketch12.addConstraint(Sketcher.Constraint("Coincident", 0, 2, 1, 1))
sketch12.addConstraint(Sketcher.Constraint("Coincident", 1, 2, 2, 1))
sketch12.addConstraint(Sketcher.Constraint("Coincident", 2, 2, 3, 1))
sketch12.addConstraint(Sketcher.Constraint("Coincident", 3, 2, 0, 1))
sketch12.addConstraint(Sketcher.Constraint("Vertical", 0))
sketch12.addConstraint(Sketcher.Constraint("Horizontal", 1))
sketch12.addConstraint(Sketcher.Constraint("Vertical", 2))
sketch12.addConstraint(Sketcher.Constraint("Horizontal", 3))
sketch12.addConstraint(Sketcher.Constraint("DistanceY", 0, 2, 0, 1, Q("50.4 mm")))
sketch12.addConstraint(Sketcher.Constraint("DistanceY", 0, 2, -1, 1, Q("12.7 mm")))
sketch12.addConstraint(Sketcher.Constraint("DistanceX", 1, 2, 1, 1, Q("184.458935 mm")))
sketch12.addConstraint(Sketcher.Constraint("DistanceX", -1, 1, 0, 2, Q("92.229467 mm")))
pad2 = body.newObject("PartDesign::Pad", "Pad001")
pad2.Profile = sketch12
pad2.Length = 29.21

# Sketch on YZ plane
sketch13 = body.newObject("Sketcher::SketchObject", "Sketch012")
sketch13.AttachmentSupport = (doc.getObject("YZ_Plane"), [""])
sketch13.MapMode = "FlatFace"
sketch13.addGeometry(Part.LineSegment(Vector(-496.77, -1344.295, 0), Vector(521.77, -1344.295, 0)), False)
sketch13.addGeometry(Part.BSplineCurve([Vector(521.77, -1344.295, 0), Vector(521.77, 28.575, 0), Vector(12.5, 28.575, 0), Vector(-496.77, 28.575, 0), Vector(-496.77, -1344.295, 0)], [3, 2, 3], [4.71238898, 6.283185307, 7.853981634], False, 2, [1, 0.707106781, 1, 0.707106781, 1], False), False)
sketch13.addGeometry(Part.LineSegment(Vector(-496.77, -1344.295, 0), Vector(521.77, -1344.295, 0)), True)  # axis
sketch13.addConstraint(Sketcher.Constraint("Block", 1))
sketch13.addConstraint(Sketcher.Constraint("Coincident", 0, 1, 1, 2))
sketch13.addConstraint(Sketcher.Constraint("Coincident", 1, 1, 0, 2))
sketch13.addConstraint(Sketcher.Constraint("Horizontal", 2))
sketch13.addConstraint(Sketcher.Constraint("Coincident", 2, 1, 0, 1))
sketch13.addConstraint(Sketcher.Constraint("DistanceX", 2, 1, 2, 2, Q("1018.54 mm")))
groove = body.newObject("PartDesign::Groove", "Groove")
groove.Profile = sketch13
groove.ReferenceAxis = (sketch13, ["Axis0"])
groove.Angle = 360

# Sketch on XY plane
sketch14 = body.newObject("Sketcher::SketchObject", "Sketch013")
sketch14.AttachmentSupport = (doc.getObject("XY_Plane"), [""])
sketch14.MapMode = "FlatFace"
sketch14.AttachmentOffset = App.Placement(Vector(0, 0, 29.21), App.Rotation())
sketch14.addGeometry(Part.Circle(Vector(85.9, -6.3, 0), Vector(0, 0, 1), 3.4), False)
sketch14.addGeometry(Part.Circle(Vector(-85.9, -6.3, 0), Vector(0, 0, 1), 3.4), False)
sketch14.addGeometry(Part.Circle(Vector(-85.9, 31.4, 0), Vector(0, 0, 1), 3.4), False)
sketch14.addGeometry(Part.Circle(Vector(85.9, 31.4, 0), Vector(0, 0, 1), 3.4), False)
sketch14.addConstraint(Sketcher.Constraint("Equal", 0, 1))
sketch14.addConstraint(Sketcher.Constraint("Equal", 1, 2))
sketch14.addConstraint(Sketcher.Constraint("Equal", 2, 3))
sketch14.addConstraint(Sketcher.Constraint("Symmetric", 0, 3, 1, 3, -2))
sketch14.addConstraint(Sketcher.Constraint("Symmetric", 2, 3, 3, 3, -2))
sketch14.addConstraint(Sketcher.Constraint("Vertical", 1, 3, 2, 3))
sketch14.addConstraint(Sketcher.Constraint("Diameter", 0, Q("6.858 mm")))
sketch14.addConstraint(Sketcher.Constraint("DistanceY", 1, 3, 2, 3, Q("37.7 mm")))
sketch14.addConstraint(Sketcher.Constraint("DistanceY", 0, 3, -1, 1, Q("6.35 mm")))
sketch14.addConstraint(Sketcher.Constraint("DistanceX", -1, 1, 0, 3, Q("85.879467 mm")))
pocket8 = body.newObject("PartDesign::Pocket", "Pocket007")
pocket8.Profile = sketch14
pocket8.Type = "ThroughAll"

# Sketch on YZ plane
sketch15 = body.newObject("Sketcher::SketchObject", "Sketch014")
sketch15.AttachmentSupport = (doc.getObject("YZ_Plane"), [""])
sketch15.MapMode = "FlatFace"
sketch15.addGeometry(Part.LineSegment(Vector(40, 129, 0), Vector(-72, 129, 0)), False)
sketch15.addGeometry(Part.LineSegment(Vector(-72, 129, 0), Vector(-72, 13, 0)), False)
sketch15.addGeometry(Part.LineSegment(Vector(-72, 13, 0), Vector(40, 13, 0)), False)
sketch15.addGeometry(Part.LineSegment(Vector(40, 13, 0), Vector(40, 129, 0)), False)
sketch15.addConstraint(Sketcher.Constraint("Coincident", 0, 2, 1, 1))
sketch15.addConstraint(Sketcher.Constraint("Coincident", 1, 2, 2, 1))
sketch15.addConstraint(Sketcher.Constraint("Coincident", 2, 2, 3, 1))
sketch15.addConstraint(Sketcher.Constraint("Coincident", 3, 2, 0, 1))
sketch15.addConstraint(Sketcher.Constraint("Horizontal", 0))
sketch15.addConstraint(Sketcher.Constraint("Vertical", 1))
sketch15.addConstraint(Sketcher.Constraint("Horizontal", 2))
sketch15.addConstraint(Sketcher.Constraint("Vertical", 3))
sketch15.addConstraint(Sketcher.Constraint("DistanceX", 0, 2, 0, 1, Q("112.190521 mm")))
sketch15.addConstraint(Sketcher.Constraint("DistanceY", 1, 2, 1, 1, Q("115.917354 mm")))
sketch15.addConstraint(Sketcher.Constraint("DistanceY", -1, 1, 0, 2, Q("128.587891 mm")))
sketch15.addConstraint(Sketcher.Constraint("DistanceX", 0, 2, -1, 1, Q("72.156937 mm")))
pocket9 = body.newObject("PartDesign::Pocket", "Pocket008")
pocket9.Profile = sketch15
pocket9.Type = "ThroughAll"

doc.recompute()
